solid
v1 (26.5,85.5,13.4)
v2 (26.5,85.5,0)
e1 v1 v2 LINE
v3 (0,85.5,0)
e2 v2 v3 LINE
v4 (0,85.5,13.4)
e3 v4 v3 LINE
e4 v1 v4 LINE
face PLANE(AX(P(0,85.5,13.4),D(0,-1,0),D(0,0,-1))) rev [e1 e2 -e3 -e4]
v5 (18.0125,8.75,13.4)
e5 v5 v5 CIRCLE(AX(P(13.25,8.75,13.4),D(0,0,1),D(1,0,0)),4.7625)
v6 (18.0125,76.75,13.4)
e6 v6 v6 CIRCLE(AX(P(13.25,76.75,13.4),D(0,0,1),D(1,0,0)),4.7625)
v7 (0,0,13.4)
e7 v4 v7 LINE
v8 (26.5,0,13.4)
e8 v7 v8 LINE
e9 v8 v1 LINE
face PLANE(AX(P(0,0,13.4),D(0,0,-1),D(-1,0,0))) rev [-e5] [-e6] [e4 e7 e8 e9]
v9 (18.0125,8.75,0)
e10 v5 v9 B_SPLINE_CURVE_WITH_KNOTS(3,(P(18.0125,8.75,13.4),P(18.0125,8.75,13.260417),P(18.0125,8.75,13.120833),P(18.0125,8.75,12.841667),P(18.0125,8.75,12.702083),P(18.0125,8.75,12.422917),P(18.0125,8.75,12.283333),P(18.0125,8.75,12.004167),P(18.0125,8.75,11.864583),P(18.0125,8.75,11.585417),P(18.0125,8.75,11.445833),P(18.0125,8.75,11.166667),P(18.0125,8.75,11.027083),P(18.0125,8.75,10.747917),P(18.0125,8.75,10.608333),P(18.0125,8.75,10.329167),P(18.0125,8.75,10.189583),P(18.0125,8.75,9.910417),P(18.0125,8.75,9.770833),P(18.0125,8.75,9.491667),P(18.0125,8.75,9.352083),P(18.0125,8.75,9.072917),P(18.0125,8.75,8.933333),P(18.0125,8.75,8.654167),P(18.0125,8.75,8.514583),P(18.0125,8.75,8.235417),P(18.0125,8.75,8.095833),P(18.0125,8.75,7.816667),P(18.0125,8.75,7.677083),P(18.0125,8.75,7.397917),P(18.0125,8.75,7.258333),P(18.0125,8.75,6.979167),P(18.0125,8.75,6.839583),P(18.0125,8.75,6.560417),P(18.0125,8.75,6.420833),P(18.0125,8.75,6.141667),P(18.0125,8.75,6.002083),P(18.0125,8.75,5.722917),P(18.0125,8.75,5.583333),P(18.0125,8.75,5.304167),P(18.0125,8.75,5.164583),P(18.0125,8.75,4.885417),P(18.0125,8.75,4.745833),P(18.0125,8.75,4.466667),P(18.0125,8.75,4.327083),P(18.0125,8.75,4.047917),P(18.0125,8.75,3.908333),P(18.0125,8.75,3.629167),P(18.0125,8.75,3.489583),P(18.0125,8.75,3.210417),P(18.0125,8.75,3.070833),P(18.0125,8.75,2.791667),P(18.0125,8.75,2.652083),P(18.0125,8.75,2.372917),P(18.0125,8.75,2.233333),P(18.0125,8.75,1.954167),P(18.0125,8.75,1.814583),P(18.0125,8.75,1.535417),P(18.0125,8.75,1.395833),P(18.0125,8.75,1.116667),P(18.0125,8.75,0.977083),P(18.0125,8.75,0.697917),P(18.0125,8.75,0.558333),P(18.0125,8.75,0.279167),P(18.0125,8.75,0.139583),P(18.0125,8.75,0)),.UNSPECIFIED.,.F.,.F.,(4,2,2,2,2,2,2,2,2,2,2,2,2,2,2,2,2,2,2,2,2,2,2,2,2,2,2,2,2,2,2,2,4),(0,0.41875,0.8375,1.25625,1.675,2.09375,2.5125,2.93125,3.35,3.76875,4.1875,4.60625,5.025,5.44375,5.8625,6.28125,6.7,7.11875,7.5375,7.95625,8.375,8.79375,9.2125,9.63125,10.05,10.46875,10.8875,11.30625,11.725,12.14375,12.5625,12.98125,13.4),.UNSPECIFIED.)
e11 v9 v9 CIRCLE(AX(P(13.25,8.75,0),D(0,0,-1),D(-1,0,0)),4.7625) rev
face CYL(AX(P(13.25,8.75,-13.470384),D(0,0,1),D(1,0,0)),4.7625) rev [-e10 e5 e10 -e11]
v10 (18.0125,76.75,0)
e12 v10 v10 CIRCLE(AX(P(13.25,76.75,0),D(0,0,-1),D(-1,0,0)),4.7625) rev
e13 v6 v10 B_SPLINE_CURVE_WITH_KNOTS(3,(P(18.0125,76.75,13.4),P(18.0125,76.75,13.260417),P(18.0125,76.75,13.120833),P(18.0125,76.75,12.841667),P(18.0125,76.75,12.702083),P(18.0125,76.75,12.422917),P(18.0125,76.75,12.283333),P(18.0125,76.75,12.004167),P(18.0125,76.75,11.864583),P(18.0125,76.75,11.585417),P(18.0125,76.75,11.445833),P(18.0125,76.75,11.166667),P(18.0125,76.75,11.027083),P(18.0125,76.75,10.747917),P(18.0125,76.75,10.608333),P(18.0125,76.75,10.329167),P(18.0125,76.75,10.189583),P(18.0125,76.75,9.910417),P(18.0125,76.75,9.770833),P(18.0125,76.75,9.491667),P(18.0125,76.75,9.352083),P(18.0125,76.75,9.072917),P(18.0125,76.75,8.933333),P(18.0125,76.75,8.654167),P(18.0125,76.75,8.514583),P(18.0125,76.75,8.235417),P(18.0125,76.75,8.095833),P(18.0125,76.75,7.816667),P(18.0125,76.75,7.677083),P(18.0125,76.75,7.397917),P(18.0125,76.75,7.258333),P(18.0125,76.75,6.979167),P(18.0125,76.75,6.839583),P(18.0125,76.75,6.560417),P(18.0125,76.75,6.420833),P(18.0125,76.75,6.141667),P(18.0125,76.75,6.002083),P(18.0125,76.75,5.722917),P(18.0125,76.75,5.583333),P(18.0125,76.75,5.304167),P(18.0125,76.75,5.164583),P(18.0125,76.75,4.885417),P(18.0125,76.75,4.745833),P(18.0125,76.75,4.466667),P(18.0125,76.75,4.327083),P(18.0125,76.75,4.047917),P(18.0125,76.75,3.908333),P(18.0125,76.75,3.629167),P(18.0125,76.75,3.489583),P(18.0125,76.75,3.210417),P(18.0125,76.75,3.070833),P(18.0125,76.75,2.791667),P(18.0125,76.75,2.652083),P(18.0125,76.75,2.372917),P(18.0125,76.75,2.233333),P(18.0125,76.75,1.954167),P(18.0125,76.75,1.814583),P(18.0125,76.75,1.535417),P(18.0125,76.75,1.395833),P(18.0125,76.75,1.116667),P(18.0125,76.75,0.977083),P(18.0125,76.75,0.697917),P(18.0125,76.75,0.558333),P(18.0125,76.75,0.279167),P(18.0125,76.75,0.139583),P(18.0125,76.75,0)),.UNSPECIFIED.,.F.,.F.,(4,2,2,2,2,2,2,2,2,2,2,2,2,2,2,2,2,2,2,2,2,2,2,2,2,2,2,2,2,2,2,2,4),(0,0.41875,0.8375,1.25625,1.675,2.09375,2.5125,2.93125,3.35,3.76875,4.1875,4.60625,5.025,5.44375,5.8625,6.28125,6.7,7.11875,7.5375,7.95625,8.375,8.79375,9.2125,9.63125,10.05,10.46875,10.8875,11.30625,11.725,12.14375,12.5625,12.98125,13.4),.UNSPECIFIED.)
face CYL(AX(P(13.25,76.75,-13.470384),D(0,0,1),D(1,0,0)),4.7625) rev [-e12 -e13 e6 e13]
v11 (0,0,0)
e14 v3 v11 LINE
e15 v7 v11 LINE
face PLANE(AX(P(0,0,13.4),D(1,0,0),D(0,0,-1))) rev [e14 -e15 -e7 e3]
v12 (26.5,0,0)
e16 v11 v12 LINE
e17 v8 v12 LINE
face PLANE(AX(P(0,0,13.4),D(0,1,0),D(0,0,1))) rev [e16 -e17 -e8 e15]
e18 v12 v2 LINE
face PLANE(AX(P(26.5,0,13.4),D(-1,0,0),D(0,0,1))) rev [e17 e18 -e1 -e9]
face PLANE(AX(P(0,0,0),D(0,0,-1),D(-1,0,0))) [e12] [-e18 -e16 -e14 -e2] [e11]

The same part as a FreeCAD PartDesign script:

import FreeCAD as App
import Part
import Sketcher
from FreeCAD import Vector
Q = App.Units.Quantity


def add_polygon(sketch, points):
    """Adds a closed chain of lines whose ends are joined by coincident constraints."""
    first, n = sketch.GeometryCount, len(points)
    for a, b in zip(points, points[1:] + points[:1]):
        sketch.addGeometry(Part.LineSegment(App.Vector(*a, 0), App.Vector(*b, 0)), False)
    for i in range(n):
        sketch.addConstraint(Sketcher.Constraint("Coincident", first + i, 2, first + (i + 1) % n, 1))

doc = App.newDocument("Part")
body = doc.addObject("PartDesign::Body", "Body")

sketch1 = doc.addObject("Sketcher::SketchObject", "Sketch")
body.addObject(sketch1)
sketch1.AttachmentSupport = (doc.XY_Plane, [""])
sketch1.MapMode = "FlatFace"
add_polygon(sketch1, [(0, 86), (0, 0), (26, 0), (26, 86)])
sketch1.addConstraint(Sketcher.Constraint("Vertical", 0))
sketch1.addConstraint(Sketcher.Constraint("Horizontal", 1))
sketch1.addConstraint(Sketcher.Constraint("Vertical", 2))
sketch1.addConstraint(Sketcher.Constraint("Horizontal", 3))
sketch1.addConstraint(Sketcher.Constraint("Coincident", 0, 2, -1, 1))
sketch1.addConstraint(Sketcher.Constraint("DistanceX", 1, 1, 1, 2, Q("26.5 mm")))
sketch1.addConstraint(Sketcher.Constraint("DistanceY", 0, 2, 0, 1, Q("85.5 mm")))
pad1 = doc.addObject("PartDesign::Pad", "Pad")
body.addObject(pad1)
pad1.Profile = sketch1
pad1.Length = 13.4

sketch2 = doc.addObject("Sketcher::SketchObject", "Sketch001")
body.addObject(sketch2)
sketch2.AttachmentSupport = (doc.XY_Plane, [""])
sketch2.MapMode = "FlatFace"
sketch2.AttachmentOffset = App.Placement(Vector(0, 0, 13.4), App.Rotation())
sketch2.addGeometry(Part.Circle(Vector(13.2, 8.8, 0), Vector(0, 0, 1), 4.8), False)
sketch2.addGeometry(Part.Circle(Vector(13.2, 76.8, 0), Vector(0, 0, 1), 4.8), False)
sketch2.addConstraint(Sketcher.Constraint("Equal", 0, 1))
sketch2.addConstraint(Sketcher.Constraint("Vertical", 0, 3, 1, 3))
sketch2.addConstraint(Sketcher.Constraint("Diameter", 0, Q("9.525 mm")))
sketch2.addConstraint(Sketcher.Constraint("DistanceY", 0, 3, 1, 3, Q("68 mm")))
sketch2.addConstraint(Sketcher.Constraint("DistanceX", -1, 1, 0, 3, Q("13.25 mm")))
sketch2.addConstraint(Sketcher.Constraint("DistanceY", -1, 1, 0, 3, Q("8.75 mm")))
pocket1 = doc.addObject("PartDesign::Pocket", "Pocket")
body.addObject(pocket1)
pocket1.Profile = sketch2
pocket1.Length = 13.4

doc.recompute()
